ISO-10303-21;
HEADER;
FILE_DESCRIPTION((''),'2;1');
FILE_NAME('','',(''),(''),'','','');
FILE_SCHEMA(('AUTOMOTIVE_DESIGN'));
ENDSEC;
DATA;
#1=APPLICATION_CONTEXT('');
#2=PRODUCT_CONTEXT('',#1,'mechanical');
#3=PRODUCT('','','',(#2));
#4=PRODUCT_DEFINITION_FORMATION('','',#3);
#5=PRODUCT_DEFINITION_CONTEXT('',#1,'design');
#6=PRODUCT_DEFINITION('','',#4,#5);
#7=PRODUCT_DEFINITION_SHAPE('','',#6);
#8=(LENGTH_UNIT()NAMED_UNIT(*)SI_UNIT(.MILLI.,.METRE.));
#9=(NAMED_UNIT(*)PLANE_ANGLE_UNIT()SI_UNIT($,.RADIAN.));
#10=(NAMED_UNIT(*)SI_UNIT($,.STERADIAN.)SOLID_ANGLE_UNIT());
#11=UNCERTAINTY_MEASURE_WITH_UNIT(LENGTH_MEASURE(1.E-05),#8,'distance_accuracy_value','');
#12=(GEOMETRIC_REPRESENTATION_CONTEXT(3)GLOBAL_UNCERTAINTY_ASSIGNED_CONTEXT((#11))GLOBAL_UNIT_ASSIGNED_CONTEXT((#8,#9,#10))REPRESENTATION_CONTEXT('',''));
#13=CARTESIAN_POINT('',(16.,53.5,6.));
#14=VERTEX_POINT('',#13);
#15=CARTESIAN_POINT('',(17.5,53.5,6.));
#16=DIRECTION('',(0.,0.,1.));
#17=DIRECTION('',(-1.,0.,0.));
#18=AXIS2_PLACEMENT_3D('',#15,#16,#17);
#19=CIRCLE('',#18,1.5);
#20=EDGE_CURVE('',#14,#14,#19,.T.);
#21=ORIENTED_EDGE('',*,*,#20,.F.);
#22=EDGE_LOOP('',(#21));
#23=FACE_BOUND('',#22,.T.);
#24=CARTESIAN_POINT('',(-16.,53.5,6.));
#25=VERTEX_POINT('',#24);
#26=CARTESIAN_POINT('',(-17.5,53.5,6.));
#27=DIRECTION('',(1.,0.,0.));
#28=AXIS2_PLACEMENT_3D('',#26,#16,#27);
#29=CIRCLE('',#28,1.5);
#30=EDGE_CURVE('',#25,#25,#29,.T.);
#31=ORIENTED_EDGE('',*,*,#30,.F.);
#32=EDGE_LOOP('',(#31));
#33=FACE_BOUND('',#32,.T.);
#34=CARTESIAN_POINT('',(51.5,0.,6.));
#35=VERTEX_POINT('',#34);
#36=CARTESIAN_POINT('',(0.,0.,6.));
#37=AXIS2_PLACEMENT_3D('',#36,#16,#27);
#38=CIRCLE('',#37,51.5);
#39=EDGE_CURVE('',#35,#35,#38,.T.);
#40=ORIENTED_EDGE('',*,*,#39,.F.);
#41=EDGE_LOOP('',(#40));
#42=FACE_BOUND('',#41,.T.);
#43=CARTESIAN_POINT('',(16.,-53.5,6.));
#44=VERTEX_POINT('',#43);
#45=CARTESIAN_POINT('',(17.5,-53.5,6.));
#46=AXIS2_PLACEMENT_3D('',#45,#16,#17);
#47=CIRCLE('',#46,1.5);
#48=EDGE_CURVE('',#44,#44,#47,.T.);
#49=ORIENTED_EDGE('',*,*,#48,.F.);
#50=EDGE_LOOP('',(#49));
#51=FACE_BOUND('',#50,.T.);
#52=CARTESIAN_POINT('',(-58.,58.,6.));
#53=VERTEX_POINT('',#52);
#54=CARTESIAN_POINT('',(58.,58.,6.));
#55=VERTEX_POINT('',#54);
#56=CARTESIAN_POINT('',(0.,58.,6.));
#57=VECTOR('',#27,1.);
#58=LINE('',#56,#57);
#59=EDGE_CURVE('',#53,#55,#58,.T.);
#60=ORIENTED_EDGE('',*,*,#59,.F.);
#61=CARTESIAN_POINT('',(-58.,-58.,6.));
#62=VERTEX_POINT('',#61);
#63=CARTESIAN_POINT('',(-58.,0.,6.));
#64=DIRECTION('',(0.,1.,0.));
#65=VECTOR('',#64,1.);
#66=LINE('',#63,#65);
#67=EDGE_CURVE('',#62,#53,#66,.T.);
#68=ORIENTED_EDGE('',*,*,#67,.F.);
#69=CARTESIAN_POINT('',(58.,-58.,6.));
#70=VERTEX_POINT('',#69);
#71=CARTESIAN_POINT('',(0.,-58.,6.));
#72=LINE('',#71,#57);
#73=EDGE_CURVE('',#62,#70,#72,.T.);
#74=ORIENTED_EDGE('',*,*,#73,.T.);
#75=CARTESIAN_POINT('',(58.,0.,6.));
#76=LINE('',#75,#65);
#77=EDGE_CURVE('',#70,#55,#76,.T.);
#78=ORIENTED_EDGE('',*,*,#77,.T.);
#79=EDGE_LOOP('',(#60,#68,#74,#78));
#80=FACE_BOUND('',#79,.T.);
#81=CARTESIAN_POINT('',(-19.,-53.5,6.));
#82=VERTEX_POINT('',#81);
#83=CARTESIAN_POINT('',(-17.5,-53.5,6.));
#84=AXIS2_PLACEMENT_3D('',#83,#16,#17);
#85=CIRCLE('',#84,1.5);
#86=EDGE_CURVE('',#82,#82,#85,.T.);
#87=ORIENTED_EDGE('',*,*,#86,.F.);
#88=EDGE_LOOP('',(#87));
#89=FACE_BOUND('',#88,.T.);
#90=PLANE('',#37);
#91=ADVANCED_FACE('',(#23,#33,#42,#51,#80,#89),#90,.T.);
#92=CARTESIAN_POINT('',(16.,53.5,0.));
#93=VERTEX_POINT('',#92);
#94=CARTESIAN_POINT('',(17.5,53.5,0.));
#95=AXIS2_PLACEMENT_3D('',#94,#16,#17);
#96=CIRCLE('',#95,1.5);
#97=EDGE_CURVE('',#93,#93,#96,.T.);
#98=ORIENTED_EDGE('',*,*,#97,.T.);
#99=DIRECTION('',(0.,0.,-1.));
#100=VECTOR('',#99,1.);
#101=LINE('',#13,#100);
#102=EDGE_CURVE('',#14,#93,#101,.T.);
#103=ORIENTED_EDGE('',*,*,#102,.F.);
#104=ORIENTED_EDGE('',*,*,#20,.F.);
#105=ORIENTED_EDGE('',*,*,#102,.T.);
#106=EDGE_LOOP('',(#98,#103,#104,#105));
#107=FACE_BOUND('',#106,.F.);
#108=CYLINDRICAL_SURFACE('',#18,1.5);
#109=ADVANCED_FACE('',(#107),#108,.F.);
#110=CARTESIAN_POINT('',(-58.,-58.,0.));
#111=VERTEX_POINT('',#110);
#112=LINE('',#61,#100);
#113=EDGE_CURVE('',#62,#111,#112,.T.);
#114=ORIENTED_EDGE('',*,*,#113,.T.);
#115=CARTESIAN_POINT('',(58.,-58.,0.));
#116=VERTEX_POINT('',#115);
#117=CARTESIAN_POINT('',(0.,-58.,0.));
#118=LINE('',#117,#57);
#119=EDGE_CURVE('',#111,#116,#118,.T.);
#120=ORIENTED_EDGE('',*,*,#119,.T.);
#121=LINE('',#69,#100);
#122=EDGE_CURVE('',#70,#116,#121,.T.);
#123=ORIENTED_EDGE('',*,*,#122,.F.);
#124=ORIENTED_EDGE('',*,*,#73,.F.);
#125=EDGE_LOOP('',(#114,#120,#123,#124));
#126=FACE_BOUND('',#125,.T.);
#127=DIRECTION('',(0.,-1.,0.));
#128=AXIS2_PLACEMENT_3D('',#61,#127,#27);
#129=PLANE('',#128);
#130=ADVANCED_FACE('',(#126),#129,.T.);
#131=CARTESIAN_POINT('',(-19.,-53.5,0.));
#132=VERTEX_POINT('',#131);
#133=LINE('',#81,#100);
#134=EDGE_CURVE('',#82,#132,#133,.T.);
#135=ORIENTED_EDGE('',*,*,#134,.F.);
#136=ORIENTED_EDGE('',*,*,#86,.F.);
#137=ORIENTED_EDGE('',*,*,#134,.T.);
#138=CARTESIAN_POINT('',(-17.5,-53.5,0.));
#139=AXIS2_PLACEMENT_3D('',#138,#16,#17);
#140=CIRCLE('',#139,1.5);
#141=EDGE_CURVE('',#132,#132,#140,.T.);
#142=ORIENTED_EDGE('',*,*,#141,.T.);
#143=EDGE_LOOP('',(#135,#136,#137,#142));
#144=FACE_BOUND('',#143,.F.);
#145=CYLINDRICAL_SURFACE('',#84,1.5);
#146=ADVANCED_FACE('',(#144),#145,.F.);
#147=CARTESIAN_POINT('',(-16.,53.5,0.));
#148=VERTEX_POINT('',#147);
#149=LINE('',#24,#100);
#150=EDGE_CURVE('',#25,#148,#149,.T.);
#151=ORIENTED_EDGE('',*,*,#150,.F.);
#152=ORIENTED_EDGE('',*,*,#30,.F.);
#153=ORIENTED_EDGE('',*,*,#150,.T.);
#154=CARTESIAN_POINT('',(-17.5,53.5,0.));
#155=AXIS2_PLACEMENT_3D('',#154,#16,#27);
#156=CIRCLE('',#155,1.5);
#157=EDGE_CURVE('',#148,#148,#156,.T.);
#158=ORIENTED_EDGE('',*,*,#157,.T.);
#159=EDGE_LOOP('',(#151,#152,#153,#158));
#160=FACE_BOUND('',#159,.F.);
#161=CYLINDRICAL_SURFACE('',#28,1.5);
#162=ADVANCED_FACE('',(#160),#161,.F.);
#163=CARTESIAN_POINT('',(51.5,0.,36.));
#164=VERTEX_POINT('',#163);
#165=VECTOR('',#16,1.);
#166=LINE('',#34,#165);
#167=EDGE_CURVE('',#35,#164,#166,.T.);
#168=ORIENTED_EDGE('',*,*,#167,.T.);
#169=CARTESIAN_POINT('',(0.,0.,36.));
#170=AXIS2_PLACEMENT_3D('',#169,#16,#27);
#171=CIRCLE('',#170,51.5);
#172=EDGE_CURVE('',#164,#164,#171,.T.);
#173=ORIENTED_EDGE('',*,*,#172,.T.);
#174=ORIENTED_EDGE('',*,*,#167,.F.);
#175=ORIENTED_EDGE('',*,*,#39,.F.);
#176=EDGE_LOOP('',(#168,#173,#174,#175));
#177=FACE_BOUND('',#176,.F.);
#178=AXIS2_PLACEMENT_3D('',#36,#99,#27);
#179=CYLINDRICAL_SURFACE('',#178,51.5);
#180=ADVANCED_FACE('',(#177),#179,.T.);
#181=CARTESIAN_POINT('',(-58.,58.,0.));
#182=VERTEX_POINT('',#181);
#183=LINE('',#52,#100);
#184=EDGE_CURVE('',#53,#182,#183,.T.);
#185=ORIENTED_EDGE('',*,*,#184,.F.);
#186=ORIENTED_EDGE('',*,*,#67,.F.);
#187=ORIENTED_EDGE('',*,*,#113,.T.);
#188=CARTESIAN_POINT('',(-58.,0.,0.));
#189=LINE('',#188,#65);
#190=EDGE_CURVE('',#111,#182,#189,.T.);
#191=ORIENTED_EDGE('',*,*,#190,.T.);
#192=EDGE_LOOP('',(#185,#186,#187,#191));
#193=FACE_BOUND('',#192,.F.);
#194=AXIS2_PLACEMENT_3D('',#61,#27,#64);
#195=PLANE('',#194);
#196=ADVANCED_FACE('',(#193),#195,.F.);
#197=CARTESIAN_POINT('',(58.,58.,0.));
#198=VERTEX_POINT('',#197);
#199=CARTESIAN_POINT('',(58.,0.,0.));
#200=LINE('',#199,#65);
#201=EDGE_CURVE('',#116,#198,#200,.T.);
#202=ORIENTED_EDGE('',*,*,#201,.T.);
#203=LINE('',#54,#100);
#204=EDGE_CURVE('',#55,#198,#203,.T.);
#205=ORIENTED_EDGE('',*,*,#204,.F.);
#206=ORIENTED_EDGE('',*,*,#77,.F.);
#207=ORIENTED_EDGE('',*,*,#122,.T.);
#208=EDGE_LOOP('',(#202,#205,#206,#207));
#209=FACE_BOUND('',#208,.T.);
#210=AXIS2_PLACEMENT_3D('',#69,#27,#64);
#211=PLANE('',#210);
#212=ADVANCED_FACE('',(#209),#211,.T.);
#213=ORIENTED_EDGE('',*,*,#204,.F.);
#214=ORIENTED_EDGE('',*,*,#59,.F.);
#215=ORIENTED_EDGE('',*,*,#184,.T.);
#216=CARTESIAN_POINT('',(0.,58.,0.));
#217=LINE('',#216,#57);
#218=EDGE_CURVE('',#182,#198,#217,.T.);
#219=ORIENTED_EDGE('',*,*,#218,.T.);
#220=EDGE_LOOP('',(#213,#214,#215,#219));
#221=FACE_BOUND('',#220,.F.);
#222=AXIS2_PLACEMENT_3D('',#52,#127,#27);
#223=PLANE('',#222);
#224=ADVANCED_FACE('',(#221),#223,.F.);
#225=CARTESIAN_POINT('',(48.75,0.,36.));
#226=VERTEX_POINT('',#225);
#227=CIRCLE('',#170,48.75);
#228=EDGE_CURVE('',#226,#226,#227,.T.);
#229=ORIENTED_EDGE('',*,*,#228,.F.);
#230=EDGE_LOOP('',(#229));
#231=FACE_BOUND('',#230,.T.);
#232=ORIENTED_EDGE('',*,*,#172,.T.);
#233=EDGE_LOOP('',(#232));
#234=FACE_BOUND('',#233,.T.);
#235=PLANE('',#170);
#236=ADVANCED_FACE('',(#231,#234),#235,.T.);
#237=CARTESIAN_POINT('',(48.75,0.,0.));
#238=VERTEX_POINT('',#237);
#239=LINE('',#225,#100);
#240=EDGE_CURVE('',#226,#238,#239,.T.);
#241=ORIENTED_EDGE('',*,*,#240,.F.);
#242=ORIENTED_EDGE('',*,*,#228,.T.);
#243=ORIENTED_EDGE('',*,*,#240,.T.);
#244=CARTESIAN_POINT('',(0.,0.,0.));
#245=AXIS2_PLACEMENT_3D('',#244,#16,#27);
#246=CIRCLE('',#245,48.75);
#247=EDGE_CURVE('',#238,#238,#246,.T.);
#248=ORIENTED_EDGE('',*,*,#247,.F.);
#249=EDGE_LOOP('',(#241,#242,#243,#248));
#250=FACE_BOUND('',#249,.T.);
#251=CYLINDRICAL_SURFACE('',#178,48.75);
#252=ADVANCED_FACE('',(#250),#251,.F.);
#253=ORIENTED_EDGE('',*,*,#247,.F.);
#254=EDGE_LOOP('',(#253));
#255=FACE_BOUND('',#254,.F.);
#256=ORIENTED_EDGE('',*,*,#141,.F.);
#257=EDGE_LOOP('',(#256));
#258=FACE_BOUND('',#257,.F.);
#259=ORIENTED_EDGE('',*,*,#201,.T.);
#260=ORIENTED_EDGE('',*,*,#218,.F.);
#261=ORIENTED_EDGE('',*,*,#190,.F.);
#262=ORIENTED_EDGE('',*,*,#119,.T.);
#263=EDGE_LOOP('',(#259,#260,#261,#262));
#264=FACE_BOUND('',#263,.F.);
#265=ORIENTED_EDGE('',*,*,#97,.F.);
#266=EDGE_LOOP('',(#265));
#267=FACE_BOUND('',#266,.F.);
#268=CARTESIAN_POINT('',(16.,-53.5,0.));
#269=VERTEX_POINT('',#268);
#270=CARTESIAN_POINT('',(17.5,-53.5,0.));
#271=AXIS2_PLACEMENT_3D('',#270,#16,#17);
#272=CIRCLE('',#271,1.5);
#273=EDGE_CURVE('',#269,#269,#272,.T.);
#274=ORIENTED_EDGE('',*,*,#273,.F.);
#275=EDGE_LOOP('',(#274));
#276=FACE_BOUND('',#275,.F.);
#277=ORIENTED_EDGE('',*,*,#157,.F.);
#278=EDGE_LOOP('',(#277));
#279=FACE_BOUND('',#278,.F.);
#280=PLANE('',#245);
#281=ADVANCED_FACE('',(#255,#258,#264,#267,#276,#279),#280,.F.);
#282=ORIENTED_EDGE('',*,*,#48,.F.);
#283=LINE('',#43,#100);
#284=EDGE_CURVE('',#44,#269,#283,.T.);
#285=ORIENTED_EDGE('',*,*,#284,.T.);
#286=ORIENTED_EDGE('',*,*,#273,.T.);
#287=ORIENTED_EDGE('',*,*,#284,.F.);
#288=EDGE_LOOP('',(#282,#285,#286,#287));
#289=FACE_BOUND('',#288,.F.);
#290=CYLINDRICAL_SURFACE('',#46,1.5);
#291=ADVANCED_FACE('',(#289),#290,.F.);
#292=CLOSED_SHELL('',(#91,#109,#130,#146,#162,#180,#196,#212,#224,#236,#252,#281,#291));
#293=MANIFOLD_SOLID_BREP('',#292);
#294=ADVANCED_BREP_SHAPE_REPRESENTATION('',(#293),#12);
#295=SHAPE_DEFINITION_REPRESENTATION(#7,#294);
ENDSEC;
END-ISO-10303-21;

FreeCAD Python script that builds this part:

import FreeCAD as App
import Part
import Sketcher
from FreeCAD import Vector
Q = App.Units.Quantity

doc = App.newDocument("Part")
body = doc.addObject("PartDesign::Body", "Body")

# Sketch on XY plane
sketch1 = body.newObject("Sketcher::SketchObject", "Sketch")
sketch1.AttachmentSupport = (doc.getObject("XY_Plane"), [""])
sketch1.MapMode = "FlatFace"
sketch1.addGeometry([
    Part.LineSegment(Vector(-58, 58, 0), Vector(-58, -58, 0)),  # 0
    Part.LineSegment(Vector(-58, -58, 0), Vector(58, -58, 0)),  # 1
    Part.LineSegment(Vector(58, -58, 0), Vector(58, 58, 0)),  # 2
    Part.LineSegment(Vector(58, 58, 0), Vector(-58, 58, 0)),  # 3
    Part.Circle(Vector(0, 0, 0), Vector(0, 0, 1), 48.75),  # 4
], False)
sketch1.addConstraint([
    Sketcher.Constraint("Coincident", 0, 2, 1, 1),
    Sketcher.Constraint("Coincident", 1, 2, 2, 1),
    Sketcher.Constraint("Coincident", 2, 2, 3, 1),
    Sketcher.Constraint("Coincident", 3, 2, 0, 1),
    Sketcher.Constraint("Vertical", 0),
    Sketcher.Constraint("Horizontal", 1),
    Sketcher.Constraint("Vertical", 2),
    Sketcher.Constraint("Horizontal", 3),
    Sketcher.Constraint("Coincident", 4, 3, -1, 1),
    Sketcher.Constraint("Symmetric", 0, 2, 2, 2, -1, 1),
    Sketcher.Constraint("Equal", 3, 0),
    Sketcher.Constraint("Diameter", 4, Q("97.5 mm")),
    Sketcher.Constraint("DistanceX", 1, 1, 1, 2, Q("116 mm")),
])
pad1 = body.newObject("PartDesign::Pad", "Pad")
pad1.Profile = sketch1
pad1.Length = 6
pad1.Reversed = True

# Sketch on XY plane
sketch2 = body.newObject("Sketcher::SketchObject", "Sketch001")
sketch2.AttachmentSupport = (doc.getObject("XY_Plane"), [""])
sketch2.MapMode = "FlatFace"
sketch2.addGeometry([
    Part.Circle(Vector(0, 0, 0), Vector(0, 0, 1), 51.5),
    Part.Circle(Vector(0, 0, 0), Vector(0, 0, 1), 48.75),
], False)
sketch2.addConstraint([
    Sketcher.Constraint("Coincident", 0, 3, -1, 1),
    Sketcher.Constraint("Coincident", 1, 3, -1, 1),
    Sketcher.Constraint("Diameter", 0, Q("103 mm")),
    Sketcher.Constraint("Diameter", 1, Q("97.5 mm")),
])
pad2 = body.newObject("PartDesign::Pad", "Pad001")
pad2.Profile = sketch2
pad2.Length = 30

# Sketch on XY plane
sketch3 = body.newObject("Sketcher::SketchObject", "Sketch002")
sketch3.AttachmentSupport = (doc.getObject("XY_Plane"), [""])
sketch3.MapMode = "FlatFace"
sketch3.addGeometry(Part.Circle(Vector(17.5, 53.5, 0), Vector(0, 0, 1), 1.5), False)
sketch3.addConstraint([
    Sketcher.Constraint("Diameter", 0, Q("3 mm")),
    Sketcher.Constraint("DistanceX", -1, 1, 0, 3, Q("17.5 mm")),
    Sketcher.Constraint("DistanceY", -1, 1, 0, 3, Q("53.5 mm")),
])
pocket1 = body.newObject("PartDesign::Pocket", "Pocket")
pocket1.Profile = sketch3
pocket1.Length = 6

# Sketch on XY plane
sketch4 = body.newObject("Sketcher::SketchObject", "Sketch003")
sketch4.AttachmentSupport = (doc.getObject("XY_Plane"), [""])
sketch4.MapMode = "FlatFace"
sketch4.addGeometry([
    Part.Circle(Vector(17.5, -53.5, 0), Vector(0, 0, 1), 1.5),
    Part.Circle(Vector(-17.5, -53.5, 0), Vector(0, 0, 1), 1.5),
    Part.Circle(Vector(-17.5, 53.5, 0), Vector(0, 0, 1), 1.5),
], False)
sketch4.addConstraint([
    Sketcher.Constraint("Equal", 0, 1),
    Sketcher.Constraint("Equal", 1, 2),
    Sketcher.Constraint("Symmetric", 0, 3, 2, 3, -1, 1),
    Sketcher.Constraint("Symmetric", 0, 3, 1, 3, -2),
    Sketcher.Constraint("Diameter", 0, Q("3 mm")),
    Sketcher.Constraint("DistanceX", 1, 3, 0, 3, Q("35 mm")),
    Sketcher.Constraint("DistanceY", 1, 3, 2, 3, Q("107 mm")),
])
pocket2 = body.newObject("PartDesign::Pocket", "Pocket001")
pocket2.Profile = sketch4
pocket2.Length = 6
body2 = doc.addObject("PartDesign::Body", "Body001")
doc.recompute()

body.Placement = App.Placement(Vector(0, 0, 6), App.Rotation(Vector(0, 0, 1), 0))
boolean = body2.newObject("PartDesign::Boolean", "Boolean")
boolean.Type = "Fuse"
boolean.addObjects([body])

doc.recompute()
